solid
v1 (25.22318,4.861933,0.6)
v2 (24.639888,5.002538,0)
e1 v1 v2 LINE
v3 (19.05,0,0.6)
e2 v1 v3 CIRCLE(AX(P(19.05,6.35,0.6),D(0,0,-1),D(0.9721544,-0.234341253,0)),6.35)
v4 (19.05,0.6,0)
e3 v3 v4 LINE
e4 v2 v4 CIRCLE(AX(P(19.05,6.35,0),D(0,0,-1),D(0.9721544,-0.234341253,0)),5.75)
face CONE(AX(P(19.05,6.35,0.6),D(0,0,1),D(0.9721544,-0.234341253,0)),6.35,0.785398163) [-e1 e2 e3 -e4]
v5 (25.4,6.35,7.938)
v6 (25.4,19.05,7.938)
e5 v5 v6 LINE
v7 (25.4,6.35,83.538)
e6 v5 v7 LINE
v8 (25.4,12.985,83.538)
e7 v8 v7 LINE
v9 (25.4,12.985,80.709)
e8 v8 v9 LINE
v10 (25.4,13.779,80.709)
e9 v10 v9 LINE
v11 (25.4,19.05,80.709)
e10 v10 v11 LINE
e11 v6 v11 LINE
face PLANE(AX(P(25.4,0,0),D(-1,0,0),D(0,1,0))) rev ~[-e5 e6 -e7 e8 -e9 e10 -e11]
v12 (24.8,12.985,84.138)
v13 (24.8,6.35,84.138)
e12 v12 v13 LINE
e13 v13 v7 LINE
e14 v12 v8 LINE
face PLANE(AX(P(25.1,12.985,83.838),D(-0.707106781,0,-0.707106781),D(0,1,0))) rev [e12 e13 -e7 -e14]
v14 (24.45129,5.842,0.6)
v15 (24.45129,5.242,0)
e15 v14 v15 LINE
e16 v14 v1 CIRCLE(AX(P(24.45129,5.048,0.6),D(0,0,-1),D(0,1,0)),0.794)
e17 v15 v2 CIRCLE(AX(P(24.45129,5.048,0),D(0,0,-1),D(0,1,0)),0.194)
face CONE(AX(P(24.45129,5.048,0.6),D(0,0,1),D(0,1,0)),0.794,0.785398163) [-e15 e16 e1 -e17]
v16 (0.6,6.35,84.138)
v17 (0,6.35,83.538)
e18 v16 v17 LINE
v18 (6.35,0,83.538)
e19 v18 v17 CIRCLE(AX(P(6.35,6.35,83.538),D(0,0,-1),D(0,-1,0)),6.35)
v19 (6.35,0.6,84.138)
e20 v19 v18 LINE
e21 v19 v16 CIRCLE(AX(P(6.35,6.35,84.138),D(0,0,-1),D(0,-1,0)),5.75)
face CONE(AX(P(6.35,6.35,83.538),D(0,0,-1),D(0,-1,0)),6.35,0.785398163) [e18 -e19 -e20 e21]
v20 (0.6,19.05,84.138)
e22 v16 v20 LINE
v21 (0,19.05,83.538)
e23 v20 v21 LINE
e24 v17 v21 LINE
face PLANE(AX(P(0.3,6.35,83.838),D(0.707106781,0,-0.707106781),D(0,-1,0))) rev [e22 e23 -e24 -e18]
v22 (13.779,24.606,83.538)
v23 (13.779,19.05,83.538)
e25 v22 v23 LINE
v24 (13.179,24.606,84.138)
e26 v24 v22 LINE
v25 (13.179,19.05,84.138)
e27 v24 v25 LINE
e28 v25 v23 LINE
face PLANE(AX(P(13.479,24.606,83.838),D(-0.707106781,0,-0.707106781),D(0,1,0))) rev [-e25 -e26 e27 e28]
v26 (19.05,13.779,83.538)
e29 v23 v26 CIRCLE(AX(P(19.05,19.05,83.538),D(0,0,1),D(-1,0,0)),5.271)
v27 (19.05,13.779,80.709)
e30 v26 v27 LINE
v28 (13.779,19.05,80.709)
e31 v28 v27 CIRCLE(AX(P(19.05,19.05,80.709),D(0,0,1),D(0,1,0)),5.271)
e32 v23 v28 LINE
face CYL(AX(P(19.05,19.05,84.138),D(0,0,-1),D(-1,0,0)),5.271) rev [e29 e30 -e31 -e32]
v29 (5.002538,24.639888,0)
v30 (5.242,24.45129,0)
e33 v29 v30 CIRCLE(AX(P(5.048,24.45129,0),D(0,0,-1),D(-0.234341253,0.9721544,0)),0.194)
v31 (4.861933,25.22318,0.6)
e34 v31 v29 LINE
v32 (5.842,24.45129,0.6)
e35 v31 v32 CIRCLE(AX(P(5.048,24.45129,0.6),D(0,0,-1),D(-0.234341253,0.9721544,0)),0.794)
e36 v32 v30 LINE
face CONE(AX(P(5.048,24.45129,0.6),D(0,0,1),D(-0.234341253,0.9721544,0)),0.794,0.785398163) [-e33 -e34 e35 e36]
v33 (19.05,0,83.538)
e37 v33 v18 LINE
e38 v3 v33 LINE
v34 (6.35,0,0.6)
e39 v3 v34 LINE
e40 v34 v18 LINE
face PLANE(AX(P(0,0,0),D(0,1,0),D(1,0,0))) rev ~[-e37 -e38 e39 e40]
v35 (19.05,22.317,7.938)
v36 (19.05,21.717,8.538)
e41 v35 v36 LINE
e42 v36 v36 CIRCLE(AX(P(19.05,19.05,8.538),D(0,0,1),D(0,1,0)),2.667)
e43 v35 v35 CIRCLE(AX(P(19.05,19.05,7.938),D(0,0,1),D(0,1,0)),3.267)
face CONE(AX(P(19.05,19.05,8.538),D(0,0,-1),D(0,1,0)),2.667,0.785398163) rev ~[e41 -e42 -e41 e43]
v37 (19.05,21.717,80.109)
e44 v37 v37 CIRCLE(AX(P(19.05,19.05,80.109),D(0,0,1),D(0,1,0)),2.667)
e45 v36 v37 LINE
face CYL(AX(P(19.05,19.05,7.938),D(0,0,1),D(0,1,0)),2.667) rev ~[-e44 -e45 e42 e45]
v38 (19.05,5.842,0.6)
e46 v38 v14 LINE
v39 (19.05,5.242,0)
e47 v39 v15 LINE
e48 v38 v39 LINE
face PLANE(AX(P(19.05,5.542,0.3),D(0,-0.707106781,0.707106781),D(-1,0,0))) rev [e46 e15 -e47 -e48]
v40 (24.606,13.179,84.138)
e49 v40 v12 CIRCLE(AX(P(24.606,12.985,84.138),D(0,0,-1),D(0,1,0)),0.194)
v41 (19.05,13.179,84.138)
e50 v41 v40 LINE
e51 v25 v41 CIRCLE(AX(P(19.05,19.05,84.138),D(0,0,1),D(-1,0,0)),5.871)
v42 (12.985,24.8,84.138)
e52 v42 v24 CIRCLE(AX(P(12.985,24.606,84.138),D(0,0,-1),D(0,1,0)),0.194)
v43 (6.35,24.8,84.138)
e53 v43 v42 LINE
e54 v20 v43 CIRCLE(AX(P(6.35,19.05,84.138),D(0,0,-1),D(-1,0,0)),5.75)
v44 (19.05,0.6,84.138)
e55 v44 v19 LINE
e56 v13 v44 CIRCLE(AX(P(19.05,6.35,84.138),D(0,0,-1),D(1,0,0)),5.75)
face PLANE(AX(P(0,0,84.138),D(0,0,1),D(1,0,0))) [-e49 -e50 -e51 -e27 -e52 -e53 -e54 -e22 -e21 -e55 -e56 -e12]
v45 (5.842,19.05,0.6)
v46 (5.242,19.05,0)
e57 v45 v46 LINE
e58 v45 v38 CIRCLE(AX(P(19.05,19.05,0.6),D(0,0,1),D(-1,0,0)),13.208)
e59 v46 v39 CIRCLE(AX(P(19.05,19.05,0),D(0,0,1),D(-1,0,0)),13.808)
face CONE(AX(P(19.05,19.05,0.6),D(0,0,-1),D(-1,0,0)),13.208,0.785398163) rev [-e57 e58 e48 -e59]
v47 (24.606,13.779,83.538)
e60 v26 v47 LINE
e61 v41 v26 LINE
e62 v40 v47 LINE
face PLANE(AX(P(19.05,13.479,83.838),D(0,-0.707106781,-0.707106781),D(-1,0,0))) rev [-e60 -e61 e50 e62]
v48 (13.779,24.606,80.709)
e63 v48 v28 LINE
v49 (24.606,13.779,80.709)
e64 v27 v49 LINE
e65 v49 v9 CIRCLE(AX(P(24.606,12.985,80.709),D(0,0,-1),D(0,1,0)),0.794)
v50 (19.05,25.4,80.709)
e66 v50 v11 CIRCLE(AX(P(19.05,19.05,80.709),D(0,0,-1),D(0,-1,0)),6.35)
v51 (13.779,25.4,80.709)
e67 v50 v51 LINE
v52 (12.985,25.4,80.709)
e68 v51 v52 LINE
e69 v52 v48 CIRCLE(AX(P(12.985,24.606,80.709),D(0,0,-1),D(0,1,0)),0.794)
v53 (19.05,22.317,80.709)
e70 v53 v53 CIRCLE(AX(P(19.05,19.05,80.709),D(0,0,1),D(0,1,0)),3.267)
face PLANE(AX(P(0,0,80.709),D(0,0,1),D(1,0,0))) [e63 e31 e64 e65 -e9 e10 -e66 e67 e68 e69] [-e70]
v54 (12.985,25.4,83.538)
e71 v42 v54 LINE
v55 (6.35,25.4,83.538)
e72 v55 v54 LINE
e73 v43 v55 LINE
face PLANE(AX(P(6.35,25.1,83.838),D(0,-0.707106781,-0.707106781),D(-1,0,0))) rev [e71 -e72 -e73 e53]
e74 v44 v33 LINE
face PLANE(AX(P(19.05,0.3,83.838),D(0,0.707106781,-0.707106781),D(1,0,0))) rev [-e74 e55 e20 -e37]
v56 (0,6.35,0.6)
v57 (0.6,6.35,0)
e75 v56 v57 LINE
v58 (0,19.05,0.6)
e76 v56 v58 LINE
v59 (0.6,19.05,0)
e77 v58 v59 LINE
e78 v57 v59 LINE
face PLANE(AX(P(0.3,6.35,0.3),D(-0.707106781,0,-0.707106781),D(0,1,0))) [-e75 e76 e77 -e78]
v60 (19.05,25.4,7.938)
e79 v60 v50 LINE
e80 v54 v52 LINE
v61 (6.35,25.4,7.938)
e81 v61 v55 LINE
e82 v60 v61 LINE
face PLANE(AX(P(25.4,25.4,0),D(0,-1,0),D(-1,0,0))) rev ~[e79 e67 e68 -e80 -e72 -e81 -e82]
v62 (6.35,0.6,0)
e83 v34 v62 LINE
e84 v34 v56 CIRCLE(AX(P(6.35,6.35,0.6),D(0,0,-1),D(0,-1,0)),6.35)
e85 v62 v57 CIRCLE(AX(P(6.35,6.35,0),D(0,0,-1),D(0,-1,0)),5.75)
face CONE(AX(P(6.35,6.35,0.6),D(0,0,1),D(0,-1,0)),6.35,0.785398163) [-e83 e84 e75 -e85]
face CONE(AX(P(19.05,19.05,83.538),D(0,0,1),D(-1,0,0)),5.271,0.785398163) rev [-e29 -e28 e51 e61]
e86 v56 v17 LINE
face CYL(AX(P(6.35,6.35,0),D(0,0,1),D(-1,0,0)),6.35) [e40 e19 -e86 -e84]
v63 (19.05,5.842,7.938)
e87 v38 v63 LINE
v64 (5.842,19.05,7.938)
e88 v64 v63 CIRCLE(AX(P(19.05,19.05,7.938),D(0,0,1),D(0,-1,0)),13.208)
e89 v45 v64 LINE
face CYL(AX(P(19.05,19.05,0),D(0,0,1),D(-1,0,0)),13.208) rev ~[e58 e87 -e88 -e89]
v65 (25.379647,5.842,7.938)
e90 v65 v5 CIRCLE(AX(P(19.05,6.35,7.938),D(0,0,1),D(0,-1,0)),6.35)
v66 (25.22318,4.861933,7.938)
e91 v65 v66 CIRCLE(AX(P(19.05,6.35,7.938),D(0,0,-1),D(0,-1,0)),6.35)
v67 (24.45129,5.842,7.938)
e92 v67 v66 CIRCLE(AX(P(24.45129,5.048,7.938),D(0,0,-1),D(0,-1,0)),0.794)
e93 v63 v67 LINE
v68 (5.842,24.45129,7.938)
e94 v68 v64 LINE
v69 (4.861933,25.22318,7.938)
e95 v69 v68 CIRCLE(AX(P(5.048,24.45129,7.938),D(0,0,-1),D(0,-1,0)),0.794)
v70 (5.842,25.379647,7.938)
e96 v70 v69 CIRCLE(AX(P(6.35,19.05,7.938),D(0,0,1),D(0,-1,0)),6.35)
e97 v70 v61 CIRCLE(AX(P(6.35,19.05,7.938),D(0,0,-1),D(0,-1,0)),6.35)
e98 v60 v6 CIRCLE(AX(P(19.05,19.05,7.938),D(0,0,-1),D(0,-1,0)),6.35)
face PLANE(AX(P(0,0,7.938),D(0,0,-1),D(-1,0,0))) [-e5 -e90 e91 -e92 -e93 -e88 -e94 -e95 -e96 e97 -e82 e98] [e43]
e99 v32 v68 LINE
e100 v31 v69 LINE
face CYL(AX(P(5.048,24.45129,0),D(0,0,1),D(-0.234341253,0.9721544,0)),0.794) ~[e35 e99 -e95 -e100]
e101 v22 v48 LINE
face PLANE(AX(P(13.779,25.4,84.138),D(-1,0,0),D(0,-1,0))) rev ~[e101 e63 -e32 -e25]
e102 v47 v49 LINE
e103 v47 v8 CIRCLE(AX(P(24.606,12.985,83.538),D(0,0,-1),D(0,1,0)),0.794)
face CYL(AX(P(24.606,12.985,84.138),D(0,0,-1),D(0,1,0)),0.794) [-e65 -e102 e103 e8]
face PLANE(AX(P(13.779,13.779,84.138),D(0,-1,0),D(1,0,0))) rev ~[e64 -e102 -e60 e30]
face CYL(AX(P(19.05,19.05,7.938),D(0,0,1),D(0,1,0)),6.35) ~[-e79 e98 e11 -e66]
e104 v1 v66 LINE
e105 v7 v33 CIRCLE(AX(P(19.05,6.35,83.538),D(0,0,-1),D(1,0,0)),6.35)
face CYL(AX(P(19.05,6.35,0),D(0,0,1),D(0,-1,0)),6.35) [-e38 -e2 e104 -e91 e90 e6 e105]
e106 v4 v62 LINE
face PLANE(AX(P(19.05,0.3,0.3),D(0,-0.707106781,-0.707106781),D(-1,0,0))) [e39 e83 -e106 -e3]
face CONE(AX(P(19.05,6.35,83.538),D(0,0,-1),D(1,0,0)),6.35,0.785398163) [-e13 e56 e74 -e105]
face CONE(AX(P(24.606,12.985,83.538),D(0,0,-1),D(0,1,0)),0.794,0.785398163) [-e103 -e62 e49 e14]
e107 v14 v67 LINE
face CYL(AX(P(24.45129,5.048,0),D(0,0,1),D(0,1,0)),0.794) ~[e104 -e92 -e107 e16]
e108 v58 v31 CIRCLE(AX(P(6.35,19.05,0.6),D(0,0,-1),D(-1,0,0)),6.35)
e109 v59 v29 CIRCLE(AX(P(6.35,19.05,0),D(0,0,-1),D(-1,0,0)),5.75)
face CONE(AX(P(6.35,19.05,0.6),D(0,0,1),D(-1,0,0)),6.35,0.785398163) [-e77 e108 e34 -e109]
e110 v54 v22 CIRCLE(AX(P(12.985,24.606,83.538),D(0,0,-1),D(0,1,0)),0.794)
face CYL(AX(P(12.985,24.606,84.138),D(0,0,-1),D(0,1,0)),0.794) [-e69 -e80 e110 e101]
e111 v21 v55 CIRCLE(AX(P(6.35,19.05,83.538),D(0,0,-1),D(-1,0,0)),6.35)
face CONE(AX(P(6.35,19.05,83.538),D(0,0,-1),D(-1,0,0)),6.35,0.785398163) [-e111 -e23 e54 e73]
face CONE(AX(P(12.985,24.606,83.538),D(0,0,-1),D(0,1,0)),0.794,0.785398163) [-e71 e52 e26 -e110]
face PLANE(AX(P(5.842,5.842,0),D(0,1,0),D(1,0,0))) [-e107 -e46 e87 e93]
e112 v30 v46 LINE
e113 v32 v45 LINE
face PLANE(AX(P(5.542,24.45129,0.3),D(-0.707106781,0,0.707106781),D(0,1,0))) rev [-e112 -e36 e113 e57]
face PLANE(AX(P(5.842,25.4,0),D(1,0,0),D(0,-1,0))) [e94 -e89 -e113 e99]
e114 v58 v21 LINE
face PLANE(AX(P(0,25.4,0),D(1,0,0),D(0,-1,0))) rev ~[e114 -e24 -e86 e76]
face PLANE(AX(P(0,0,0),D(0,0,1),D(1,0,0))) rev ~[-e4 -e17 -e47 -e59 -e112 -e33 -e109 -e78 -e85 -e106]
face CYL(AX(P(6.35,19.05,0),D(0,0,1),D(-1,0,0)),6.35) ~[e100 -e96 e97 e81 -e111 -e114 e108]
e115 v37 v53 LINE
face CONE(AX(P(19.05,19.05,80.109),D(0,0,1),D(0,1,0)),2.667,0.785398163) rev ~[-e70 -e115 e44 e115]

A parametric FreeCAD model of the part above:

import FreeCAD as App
import Part
import Sketcher
Q = App.Units.Quantity


def edges_at(feature, points):
    """Names of the edges that pass closest to the given points."""
    edges = feature.Shape.Edges
    near = lambda p: min(range(len(edges)), key=lambda i: edges[i].distToShape(Part.Vertex(*p))[0])
    return sorted({f"Edge{near(p) + 1}" for p in points})

doc = App.newDocument("Part")
params = doc.addObject("Spreadsheet::Sheet", "Params")
for row, (alias, value) in enumerate([
    ("sketch1_width", "1 in"),
    ("pad1_length", "84.138 mm"),
    ("pocket1_length", "0.135 in"),
    ("sketch3_width", "0.77 in"),
    ("pocket2_length", "7.938 mm"),
    ("sketch4_diameter", "0.21 in"),
    ("hole_diameter", "0.21 in"),
    ("fillet_radius", "0.25 in"),
    ("fillet2_radius", "0.794 mm"),
    ("fillet3_radius", "5.271 mm"),
    ("fillet4_radius", "0.52 in"),
    ("chamfer_size", "0.6 mm"),
], start=1):
    params.set(f"A{row}", alias)
    params.set(f"B{row}", "=" + value)
    params.setAlias(f"B{row}", alias)

body = doc.addObject("PartDesign::Body", "Body")

sketch1 = body.newObject("Sketcher::SketchObject", "Sketch")
sketch1.AttachmentSupport = (doc.getObject("XY_Plane"), [""])
sketch1.MapMode = "FlatFace"
sketch1.addGeometry([
    Part.LineSegment(App.Vector(0, 25.4, 0), App.Vector(0, 0, 0)),
    Part.LineSegment(App.Vector(0, 0, 0), App.Vector(25.4, 0, 0)),
    Part.LineSegment(App.Vector(25.4, 0, 0), App.Vector(25.4, 25.4, 0)),
    Part.LineSegment(App.Vector(25.4, 25.4, 0), App.Vector(0, 25.4, 0)),
], False)
sketch1.addConstraint([
    Sketcher.Constraint("Coincident", 0, 2, 1, 1),
    Sketcher.Constraint("Coincident", 1, 2, 2, 1),
    Sketcher.Constraint("Coincident", 2, 2, 3, 1),
    Sketcher.Constraint("Coincident", 3, 2, 0, 1),
    Sketcher.Constraint("Vertical", 0),
    Sketcher.Constraint("Horizontal", 1),
    Sketcher.Constraint("Vertical", 2),
    Sketcher.Constraint("Horizontal", 3),
    Sketcher.Constraint("Coincident", 0, 2, -1, 1),
    Sketcher.Constraint("Equal", 3, 0),
    Sketcher.Constraint("DistanceX", 1, 1, 1, 2, Q("1 in")),
])
sketch1.setExpression("Constraints[10]", "Params.sketch1_width")
pad1 = body.newObject("PartDesign::Pad", "Pad")
pad1.Profile = sketch1
pad1.setExpression("Length", "Params.pad1_length")

sketch2 = body.newObject("Sketcher::SketchObject", "Sketch001")
sketch2.AttachmentSupport = (doc.getObject("XY_Plane"), [""])
sketch2.MapMode = "FlatFace"
sketch2.AttachmentOffset = App.Placement(App.Vector(0, 0, 84.138), App.Rotation())
sketch2.addGeometry([
    Part.LineSegment(App.Vector(25.4, 13.779, 0), App.Vector(25.4, 25.4, 0)),
    Part.LineSegment(App.Vector(25.4, 25.4, 0), App.Vector(13.779, 25.4, 0)),
    Part.LineSegment(App.Vector(13.779, 25.4, 0), App.Vector(13.779, 13.779, 0)),
    Part.LineSegment(App.Vector(13.779, 13.779, 0), App.Vector(25.4, 13.779, 0)),
], False)
sketch2.addConstraint([
    Sketcher.Constraint("Coincident", 0, 2, 1, 1),
    Sketcher.Constraint("Coincident", 1, 2, 2, 1),
    Sketcher.Constraint("Coincident", 2, 2, 3, 1),
    Sketcher.Constraint("Coincident", 3, 2, 0, 1),
    Sketcher.Constraint("Vertical", 0),
    Sketcher.Constraint("Horizontal", 1),
    Sketcher.Constraint("Vertical", 2),
    Sketcher.Constraint("Horizontal", 3),
    Sketcher.Constraint("Equal", 3, 0),
    Sketcher.Constraint("DistanceX", -1, 1, 0, 2, Q("1 in")),
    Sketcher.Constraint("DistanceY", -1, 1, 0, 2, Q("1 in")),
    Sketcher.Constraint("DistanceX", 1, 2, 1, 1, 11.621),
])
pocket1 = body.newObject("PartDesign::Pocket", "Pocket")
pocket1.Profile = sketch2
pocket1.setExpression("Length", "Params.pocket1_length")

sketch3 = body.newObject("Sketcher::SketchObject", "Sketch002")
sketch3.AttachmentSupport = (doc.getObject("XY_Plane"), [""])
sketch3.MapMode = "FlatFace"
sketch3.addGeometry([
    Part.LineSegment(App.Vector(5.842, 25.4, 0), App.Vector(25.4, 25.4, 0)),
    Part.LineSegment(App.Vector(25.4, 25.4, 0), App.Vector(25.4, 5.842, 0)),
    Part.LineSegment(App.Vector(25.4, 5.842, 0), App.Vector(5.842, 5.842, 0)),
    Part.LineSegment(App.Vector(5.842, 5.842, 0), App.Vector(5.842, 25.4, 0)),
], False)
sketch3.addConstraint([
    Sketcher.Constraint("Coincident", 0, 2, 1, 1),
    Sketcher.Constraint("Coincident", 1, 2, 2, 1),
    Sketcher.Constraint("Coincident", 2, 2, 3, 1),
    Sketcher.Constraint("Coincident", 3, 2, 0, 1),
    Sketcher.Constraint("Horizontal", 0),
    Sketcher.Constraint("Vertical", 1),
    Sketcher.Constraint("Horizontal", 2),
    Sketcher.Constraint("Vertical", 3),
    Sketcher.Constraint("Equal", 2, 1),
    Sketcher.Constraint("DistanceX", 0, 1, 0, 2, Q("0.77 in")),
    Sketcher.Constraint("DistanceX", -1, 1, 0, 2, Q("1 in")),
    Sketcher.Constraint("DistanceY", -1, 1, 0, 2, Q("1 in")),
])
sketch3.setExpression("Constraints[9]", "Params.sketch3_width")
pocket2 = body.newObject("PartDesign::Pocket", "Pocket001")
pocket2.Profile = sketch3
pocket2.setExpression("Length", "Params.pocket2_length")
pocket2.Reversed = True

sketch4 = body.newObject("Sketcher::SketchObject", "Sketch003")
sketch4.AttachmentSupport = (doc.getObject("XY_Plane"), [""])
sketch4.MapMode = "FlatFace"
sketch4.AttachmentOffset = App.Placement(App.Vector(0, 0, 7.938), App.Rotation())
sketch4.addGeometry(Part.Circle(App.Vector(19.05, 19.05, 0), App.Vector(0, 0, 1), 2.667), False)
sketch4.addConstraint([
    Sketcher.Constraint("Diameter", 0, Q("0.21 in")),
    Sketcher.Constraint("DistanceX", -1, 1, 0, 3, Q("0.75 in")),
    Sketcher.Constraint("DistanceY", -1, 1, 0, 3, Q("0.75 in")),
])
sketch4.setExpression("Constraints[0]", "Params.sketch4_diameter")
doc.recompute()
hole = body.newObject("PartDesign::Hole", "Hole")
hole.Profile = sketch4
hole.ThreadType = "None"
hole.setExpression("Diameter", "Params.hole_diameter")
hole.DepthType = "ThroughAll"
hole.Reversed = True
doc.recompute()

fillet = body.newObject("PartDesign::Fillet", "Fillet")
fillet.Base = (hole, edges_at(hole, [
    (0, 25.4, 42.069),
    (25.4, 25.4, 44.324),
    (0, 0, 42.069),
    (25.4, 0, 42.069),
]))
fillet.setExpression("Radius", "Params.fillet_radius")
doc.recompute()

fillet2 = body.newObject("PartDesign::Fillet", "Fillet001")
fillet2.Base = (fillet, edges_at(fillet, [
    (25.38, 5.842, 3.969),
    (5.842, 25.38, 3.969),
    (25.4, 13.779, 82.424),
    (13.779, 25.4, 82.424),
]))
fillet2.setExpression("Radius", "Params.fillet2_radius")
doc.recompute()

fillet3 = body.newObject("PartDesign::Fillet", "Fillet002")
fillet3.Base = (fillet2, edges_at(fillet2, [(13.779, 13.779, 82.424)]))
fillet3.setExpression("Radius", "Params.fillet3_radius")
doc.recompute()

fillet4 = body.newObject("PartDesign::Fillet", "Fillet003")
fillet4.Base = (fillet3, edges_at(fillet3, [(5.842, 5.842, 3.969)]))
fillet4.setExpression("Radius", "Params.fillet4_radius")
doc.recompute()

chamfer = body.newObject("PartDesign::Chamfer", "Chamfer")
chamfer.Base = (fillet4, edges_at(fillet4, [
    (19.05, 16.383, 7.938),
    (9.71, 9.71, 0),
    (5.842, 21.751, 0),
    (5.539, 25.075, 0),
    (1.361, 22.979, 0),
    (0, 12.7, 0),
    (1.86, 1.86, 0),
    (12.7, 0, 0),
    (22.979, 1.361, 0),
    (25.075, 5.539, 0),
    (21.751, 5.842, 0),
    (19.05, 16.383, 80.709),
    (21.828, 13.779, 84.138),
    (15.323, 15.323, 84.138),
    (13.779, 21.828, 84.138),
    (13.546, 25.167, 84.138),
    (9.668, 25.4, 84.138),
    (1.86, 23.54, 84.138),
    (0, 12.7, 84.138),
    (1.86, 1.86, 84.138),
    (12.7, 0, 84.138),
    (23.54, 1.86, 84.138),
    (25.4, 9.668, 84.138),
    (25.167, 13.546, 84.138),
]))
chamfer.setExpression("Size", "Params.chamfer_size")

doc.recompute()
